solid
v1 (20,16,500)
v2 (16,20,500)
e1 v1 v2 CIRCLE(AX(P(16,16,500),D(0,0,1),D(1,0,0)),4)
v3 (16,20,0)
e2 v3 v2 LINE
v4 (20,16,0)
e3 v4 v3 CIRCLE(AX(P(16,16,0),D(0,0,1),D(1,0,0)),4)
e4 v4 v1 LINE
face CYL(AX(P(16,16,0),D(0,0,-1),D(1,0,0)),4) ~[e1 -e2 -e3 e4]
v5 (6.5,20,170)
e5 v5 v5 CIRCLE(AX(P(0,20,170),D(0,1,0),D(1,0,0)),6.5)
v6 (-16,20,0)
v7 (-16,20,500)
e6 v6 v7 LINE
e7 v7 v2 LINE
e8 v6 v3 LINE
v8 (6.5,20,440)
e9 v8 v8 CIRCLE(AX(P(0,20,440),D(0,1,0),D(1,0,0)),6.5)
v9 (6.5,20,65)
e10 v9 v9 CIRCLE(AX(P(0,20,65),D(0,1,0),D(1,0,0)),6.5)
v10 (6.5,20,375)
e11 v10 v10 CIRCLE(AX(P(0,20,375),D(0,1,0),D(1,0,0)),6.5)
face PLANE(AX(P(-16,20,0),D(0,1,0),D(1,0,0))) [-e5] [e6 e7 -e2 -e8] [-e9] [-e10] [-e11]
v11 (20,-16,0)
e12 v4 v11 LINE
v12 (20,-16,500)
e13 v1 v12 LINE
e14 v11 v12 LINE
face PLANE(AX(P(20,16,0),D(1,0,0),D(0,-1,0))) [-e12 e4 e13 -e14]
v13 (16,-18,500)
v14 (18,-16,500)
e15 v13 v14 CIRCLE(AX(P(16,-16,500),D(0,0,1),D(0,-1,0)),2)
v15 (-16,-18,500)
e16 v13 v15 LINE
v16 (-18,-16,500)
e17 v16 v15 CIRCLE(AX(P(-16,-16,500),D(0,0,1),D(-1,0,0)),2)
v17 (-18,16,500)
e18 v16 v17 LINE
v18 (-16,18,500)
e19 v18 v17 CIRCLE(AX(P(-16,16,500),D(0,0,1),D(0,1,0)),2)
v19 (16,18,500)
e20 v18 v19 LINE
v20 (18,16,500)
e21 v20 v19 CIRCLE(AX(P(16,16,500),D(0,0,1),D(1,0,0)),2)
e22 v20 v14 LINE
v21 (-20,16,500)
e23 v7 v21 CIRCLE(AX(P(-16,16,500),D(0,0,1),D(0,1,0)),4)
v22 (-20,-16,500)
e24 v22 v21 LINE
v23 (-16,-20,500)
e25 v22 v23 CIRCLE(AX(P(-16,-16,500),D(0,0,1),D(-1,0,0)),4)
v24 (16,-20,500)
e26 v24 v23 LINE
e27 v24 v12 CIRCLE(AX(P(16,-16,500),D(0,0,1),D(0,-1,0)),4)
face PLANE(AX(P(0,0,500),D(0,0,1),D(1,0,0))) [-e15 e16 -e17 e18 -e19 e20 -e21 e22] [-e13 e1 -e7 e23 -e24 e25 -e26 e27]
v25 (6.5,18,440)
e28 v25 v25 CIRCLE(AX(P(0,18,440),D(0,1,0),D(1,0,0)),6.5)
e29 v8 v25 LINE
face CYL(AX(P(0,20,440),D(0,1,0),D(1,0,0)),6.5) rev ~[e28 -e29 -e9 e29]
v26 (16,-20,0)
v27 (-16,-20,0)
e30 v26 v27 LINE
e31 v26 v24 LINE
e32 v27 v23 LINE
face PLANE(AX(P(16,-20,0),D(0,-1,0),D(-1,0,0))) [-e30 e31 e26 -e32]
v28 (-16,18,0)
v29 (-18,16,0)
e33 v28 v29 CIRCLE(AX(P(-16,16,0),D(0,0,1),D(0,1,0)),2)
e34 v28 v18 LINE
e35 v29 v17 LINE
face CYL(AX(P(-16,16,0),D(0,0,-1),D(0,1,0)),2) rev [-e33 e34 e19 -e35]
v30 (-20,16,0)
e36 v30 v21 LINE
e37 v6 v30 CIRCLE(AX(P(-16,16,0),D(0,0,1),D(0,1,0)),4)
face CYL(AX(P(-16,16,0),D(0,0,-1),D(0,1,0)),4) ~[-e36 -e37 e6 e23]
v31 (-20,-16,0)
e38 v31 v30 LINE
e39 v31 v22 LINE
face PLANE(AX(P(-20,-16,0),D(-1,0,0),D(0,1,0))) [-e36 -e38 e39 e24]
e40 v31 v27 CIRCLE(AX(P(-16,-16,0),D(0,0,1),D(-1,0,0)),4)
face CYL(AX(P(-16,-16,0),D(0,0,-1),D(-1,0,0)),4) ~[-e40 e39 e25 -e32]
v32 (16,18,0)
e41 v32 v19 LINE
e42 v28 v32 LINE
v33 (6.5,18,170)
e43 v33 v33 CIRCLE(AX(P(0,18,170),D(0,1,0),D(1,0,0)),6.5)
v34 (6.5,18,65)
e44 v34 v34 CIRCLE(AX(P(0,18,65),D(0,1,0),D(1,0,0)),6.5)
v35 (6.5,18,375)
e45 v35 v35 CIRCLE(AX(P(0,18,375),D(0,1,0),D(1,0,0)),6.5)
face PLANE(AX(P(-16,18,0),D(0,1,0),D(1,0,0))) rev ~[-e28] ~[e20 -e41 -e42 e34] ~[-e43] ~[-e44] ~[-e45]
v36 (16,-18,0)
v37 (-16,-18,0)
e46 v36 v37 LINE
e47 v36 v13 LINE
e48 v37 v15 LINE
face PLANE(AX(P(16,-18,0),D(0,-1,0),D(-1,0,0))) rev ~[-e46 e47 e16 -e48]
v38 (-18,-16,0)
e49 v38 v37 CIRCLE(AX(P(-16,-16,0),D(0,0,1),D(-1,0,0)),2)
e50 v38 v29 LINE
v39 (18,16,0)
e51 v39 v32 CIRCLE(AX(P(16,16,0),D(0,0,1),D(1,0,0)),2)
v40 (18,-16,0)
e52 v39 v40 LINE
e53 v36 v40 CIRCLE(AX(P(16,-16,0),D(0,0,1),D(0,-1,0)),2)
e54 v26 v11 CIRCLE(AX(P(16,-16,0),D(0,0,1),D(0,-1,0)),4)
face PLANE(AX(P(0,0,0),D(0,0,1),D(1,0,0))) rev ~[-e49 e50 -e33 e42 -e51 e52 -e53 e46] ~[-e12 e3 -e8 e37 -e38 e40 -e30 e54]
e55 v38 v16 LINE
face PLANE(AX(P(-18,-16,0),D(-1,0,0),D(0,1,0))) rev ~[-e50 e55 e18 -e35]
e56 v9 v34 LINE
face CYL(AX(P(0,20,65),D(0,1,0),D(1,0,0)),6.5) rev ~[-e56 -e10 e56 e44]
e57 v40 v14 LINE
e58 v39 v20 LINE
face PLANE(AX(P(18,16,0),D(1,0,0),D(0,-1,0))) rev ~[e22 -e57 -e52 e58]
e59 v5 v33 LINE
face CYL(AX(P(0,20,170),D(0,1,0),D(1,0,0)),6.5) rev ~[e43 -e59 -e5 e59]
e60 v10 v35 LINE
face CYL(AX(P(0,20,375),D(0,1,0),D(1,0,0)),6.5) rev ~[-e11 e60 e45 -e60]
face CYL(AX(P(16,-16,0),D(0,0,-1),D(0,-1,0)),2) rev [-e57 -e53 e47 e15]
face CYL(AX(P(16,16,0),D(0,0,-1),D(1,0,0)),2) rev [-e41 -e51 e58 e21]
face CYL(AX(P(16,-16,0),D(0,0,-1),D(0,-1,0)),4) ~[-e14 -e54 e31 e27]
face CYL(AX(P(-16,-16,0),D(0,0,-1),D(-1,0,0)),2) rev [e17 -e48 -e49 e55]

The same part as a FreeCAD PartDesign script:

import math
import FreeCAD as App
import Part
import Sketcher

doc = App.newDocument("Part")
params = doc.addObject("Spreadsheet::Sheet", "Params")
for row, (alias, value) in enumerate([
    ("sketch1_radius", "4 mm"),
    ("sketch1_radius2", "2 mm"),
    ("pad1_length", "500 mm"),
    ("sketch2_diameter", "13 mm"),
    ("pocket1_length", "2 mm"),
], start=1):
    params.set(f"A{row}", alias)
    params.set(f"B{row}", "=" + value)
    params.setAlias(f"B{row}", alias)

body = doc.addObject("PartDesign::Body", "Body")

# Sketch on XY plane
sketch1 = doc.addObject("Sketcher::SketchObject", "Sketch")
body.addObject(sketch1)
sketch1.AttachmentSupport = (doc.XY_Plane, [""])
sketch1.MapMode = "FlatFace"
sketch1.addGeometry(Part.LineSegment(App.Vector(-20, 16, 0), App.Vector(-20, -16, 0)), False)
sketch1.addGeometry(Part.ArcOfCircle(Part.Circle(App.Vector(-16, -16, 0), App.Vector(0, 0, 1), 4), math.radians(180), math.radians(270)), False)
sketch1.addGeometry(Part.LineSegment(App.Vector(-16, -20, 0), App.Vector(16, -20, 0)), False)
sketch1.addGeometry(Part.ArcOfCircle(Part.Circle(App.Vector(16, -16, 0), App.Vector(0, 0, 1), 4), math.radians(-90), math.radians(0)), False)
sketch1.addGeometry(Part.LineSegment(App.Vector(20, -16, 0), App.Vector(20, 16, 0)), False)
sketch1.addGeometry(Part.ArcOfCircle(Part.Circle(App.Vector(16, 16, 0), App.Vector(0, 0, 1), 4), math.radians(0), math.radians(90)), False)
sketch1.addGeometry(Part.LineSegment(App.Vector(16, 20, 0), App.Vector(-16, 20, 0)), False)
sketch1.addGeometry(Part.ArcOfCircle(Part.Circle(App.Vector(-16, 16, 0), App.Vector(0, 0, 1), 4), math.radians(90), math.radians(180)), False)
sketch1.addGeometry(Part.ArcOfCircle(Part.Circle(App.Vector(-16, 16, 0), App.Vector(0, 0, 1), 2), math.radians(90), math.radians(180)), False)
sketch1.addGeometry(Part.LineSegment(App.Vector(-16, 18, 0), App.Vector(16, 18, 0)), False)
sketch1.addGeometry(Part.ArcOfCircle(Part.Circle(App.Vector(16, 16, 0), App.Vector(0, 0, 1), 2), math.radians(0), math.radians(90)), False)
sketch1.addGeometry(Part.LineSegment(App.Vector(18, 16, 0), App.Vector(18, -16, 0)), False)
sketch1.addGeometry(Part.ArcOfCircle(Part.Circle(App.Vector(16, -16, 0), App.Vector(0, 0, 1), 2), math.radians(-90), math.radians(0)), False)
sketch1.addGeometry(Part.LineSegment(App.Vector(16, -18, 0), App.Vector(-16, -18, 0)), False)
sketch1.addGeometry(Part.ArcOfCircle(Part.Circle(App.Vector(-16, -16, 0), App.Vector(0, 0, 1), 2), math.radians(180), math.radians(270)), False)
sketch1.addGeometry(Part.LineSegment(App.Vector(-18, -16, 0), App.Vector(-18, 16, 0)), False)
sketch1.addConstraint(Sketcher.Constraint("Tangent", 0, 2, 1, 1))
sketch1.addConstraint(Sketcher.Constraint("Tangent", 1, 2, 2, 1))
sketch1.addConstraint(Sketcher.Constraint("Tangent", 2, 2, 3, 1))
sketch1.addConstraint(Sketcher.Constraint("Tangent", 3, 2, 4, 1))
sketch1.addConstraint(Sketcher.Constraint("Tangent", 4, 2, 5, 1))
sketch1.addConstraint(Sketcher.Constraint("Tangent", 5, 2, 6, 1))
sketch1.addConstraint(Sketcher.Constraint("Tangent", 6, 2, 7, 1))
sketch1.addConstraint(Sketcher.Constraint("Tangent", 7, 2, 0, 1))
sketch1.addConstraint(Sketcher.Constraint("Tangent", 8, 1, 9, 1))
sketch1.addConstraint(Sketcher.Constraint("Tangent", 9, 2, 10, 2))
sketch1.addConstraint(Sketcher.Constraint("Tangent", 10, 1, 11, 1))
sketch1.addConstraint(Sketcher.Constraint("Tangent", 11, 2, 12, 2))
sketch1.addConstraint(Sketcher.Constraint("Tangent", 12, 1, 13, 1))
sketch1.addConstraint(Sketcher.Constraint("Tangent", 13, 2, 14, 2))
sketch1.addConstraint(Sketcher.Constraint("Tangent", 14, 1, 15, 1))
sketch1.addConstraint(Sketcher.Constraint("Tangent", 15, 2, 8, 2))
sketch1.addConstraint(Sketcher.Constraint("Vertical", 0))
sketch1.addConstraint(Sketcher.Constraint("Horizontal", 2))
sketch1.addConstraint(Sketcher.Constraint("Vertical", 4))
sketch1.addConstraint(Sketcher.Constraint("Horizontal", 6))
sketch1.addConstraint(Sketcher.Constraint("Horizontal", 9))
sketch1.addConstraint(Sketcher.Constraint("Vertical", 11))
sketch1.addConstraint(Sketcher.Constraint("Horizontal", 13))
sketch1.addConstraint(Sketcher.Constraint("Vertical", 15))
sketch1.addConstraint(Sketcher.Constraint("Coincident", 8, 3, 7, 3))
sketch1.addConstraint(Sketcher.Constraint("Coincident", 10, 3, 5, 3))
sketch1.addConstraint(Sketcher.Constraint("Coincident", 12, 3, 3, 3))
sketch1.addConstraint(Sketcher.Constraint("Equal", 1, 3))
sketch1.addConstraint(Sketcher.Constraint("Equal", 3, 5))
sketch1.addConstraint(Sketcher.Constraint("Equal", 5, 7))
sketch1.addConstraint(Sketcher.Constraint("Equal", 12, 14))
sketch1.addConstraint(Sketcher.Constraint("Symmetric", 1, 3, 5, 3, -1, 1))
sketch1.addConstraint(Sketcher.Constraint("Equal", 13, 0))
sketch1.addConstraint(Sketcher.Constraint("Radius", 1, 4.0))
sketch1.addConstraint(Sketcher.Constraint("Radius", 8, 2.0))
sketch1.addConstraint(Sketcher.Constraint("DistanceX", 0, 2, -1, 1, 20.0))
sketch1.setExpression("Constraints[33]", "Params.sketch1_radius")
sketch1.setExpression("Constraints[34]", "Params.sketch1_radius2")
pad1 = doc.addObject("PartDesign::Pad", "Pad")
body.addObject(pad1)
pad1.Profile = sketch1
pad1.setExpression("Length", "Params.pad1_length")

# Sketch on XZ plane
sketch2 = doc.addObject("Sketcher::SketchObject", "Sketch001")
body.addObject(sketch2)
sketch2.AttachmentSupport = (doc.XZ_Plane, [""])
sketch2.MapMode = "FlatFace"
sketch2.AttachmentOffset = App.Placement(App.Vector(0, 0, -20), App.Rotation())
sketch2.addGeometry(Part.Circle(App.Vector(0, 65, 0), App.Vector(0, 0, 1), 6.5), False)
sketch2.addGeometry(Part.Circle(App.Vector(0, 170, 0), App.Vector(0, 0, 1), 6.5), False)
sketch2.addGeometry(Part.Circle(App.Vector(0, 375, 0), App.Vector(0, 0, 1), 6.5), False)
sketch2.addGeometry(Part.Circle(App.Vector(0, 440, 0), App.Vector(0, 0, 1), 6.5), False)
sketch2.addConstraint(Sketcher.Constraint("Equal", 0, 1))
sketch2.addConstraint(Sketcher.Constraint("Equal", 1, 2))
sketch2.addConstraint(Sketcher.Constraint("Equal", 2, 3))
sketch2.addConstraint(Sketcher.Constraint("PointOnObject", 0, 3, -2))
sketch2.addConstraint(Sketcher.Constraint("PointOnObject", 1, 3, -2))
sketch2.addConstraint(Sketcher.Constraint("PointOnObject", 2, 3, -2))
sketch2.addConstraint(Sketcher.Constraint("PointOnObject", 3, 3, -2))
sketch2.addConstraint(Sketcher.Constraint("Diameter", 0, 13.0))
sketch2.addConstraint(Sketcher.Constraint("DistanceY", -1, 1, 0, 3, 65.0))
sketch2.addConstraint(Sketcher.Constraint("DistanceY", 0, 3, 1, 3, 105.0))
sketch2.addConstraint(Sketcher.Constraint("DistanceY", 1, 3, 2, 3, 205.0))
sketch2.addConstraint(Sketcher.Constraint("DistanceY", 2, 3, 3, 3, 65.0))
sketch2.setExpression("Constraints[7]", "Params.sketch2_diameter")
pocket1 = doc.addObject("PartDesign::Pocket", "Pocket")
body.addObject(pocket1)
pocket1.Profile = sketch2
pocket1.setExpression("Length", "Params.pocket1_length")
pocket1.Reversed = True

doc.recompute()
